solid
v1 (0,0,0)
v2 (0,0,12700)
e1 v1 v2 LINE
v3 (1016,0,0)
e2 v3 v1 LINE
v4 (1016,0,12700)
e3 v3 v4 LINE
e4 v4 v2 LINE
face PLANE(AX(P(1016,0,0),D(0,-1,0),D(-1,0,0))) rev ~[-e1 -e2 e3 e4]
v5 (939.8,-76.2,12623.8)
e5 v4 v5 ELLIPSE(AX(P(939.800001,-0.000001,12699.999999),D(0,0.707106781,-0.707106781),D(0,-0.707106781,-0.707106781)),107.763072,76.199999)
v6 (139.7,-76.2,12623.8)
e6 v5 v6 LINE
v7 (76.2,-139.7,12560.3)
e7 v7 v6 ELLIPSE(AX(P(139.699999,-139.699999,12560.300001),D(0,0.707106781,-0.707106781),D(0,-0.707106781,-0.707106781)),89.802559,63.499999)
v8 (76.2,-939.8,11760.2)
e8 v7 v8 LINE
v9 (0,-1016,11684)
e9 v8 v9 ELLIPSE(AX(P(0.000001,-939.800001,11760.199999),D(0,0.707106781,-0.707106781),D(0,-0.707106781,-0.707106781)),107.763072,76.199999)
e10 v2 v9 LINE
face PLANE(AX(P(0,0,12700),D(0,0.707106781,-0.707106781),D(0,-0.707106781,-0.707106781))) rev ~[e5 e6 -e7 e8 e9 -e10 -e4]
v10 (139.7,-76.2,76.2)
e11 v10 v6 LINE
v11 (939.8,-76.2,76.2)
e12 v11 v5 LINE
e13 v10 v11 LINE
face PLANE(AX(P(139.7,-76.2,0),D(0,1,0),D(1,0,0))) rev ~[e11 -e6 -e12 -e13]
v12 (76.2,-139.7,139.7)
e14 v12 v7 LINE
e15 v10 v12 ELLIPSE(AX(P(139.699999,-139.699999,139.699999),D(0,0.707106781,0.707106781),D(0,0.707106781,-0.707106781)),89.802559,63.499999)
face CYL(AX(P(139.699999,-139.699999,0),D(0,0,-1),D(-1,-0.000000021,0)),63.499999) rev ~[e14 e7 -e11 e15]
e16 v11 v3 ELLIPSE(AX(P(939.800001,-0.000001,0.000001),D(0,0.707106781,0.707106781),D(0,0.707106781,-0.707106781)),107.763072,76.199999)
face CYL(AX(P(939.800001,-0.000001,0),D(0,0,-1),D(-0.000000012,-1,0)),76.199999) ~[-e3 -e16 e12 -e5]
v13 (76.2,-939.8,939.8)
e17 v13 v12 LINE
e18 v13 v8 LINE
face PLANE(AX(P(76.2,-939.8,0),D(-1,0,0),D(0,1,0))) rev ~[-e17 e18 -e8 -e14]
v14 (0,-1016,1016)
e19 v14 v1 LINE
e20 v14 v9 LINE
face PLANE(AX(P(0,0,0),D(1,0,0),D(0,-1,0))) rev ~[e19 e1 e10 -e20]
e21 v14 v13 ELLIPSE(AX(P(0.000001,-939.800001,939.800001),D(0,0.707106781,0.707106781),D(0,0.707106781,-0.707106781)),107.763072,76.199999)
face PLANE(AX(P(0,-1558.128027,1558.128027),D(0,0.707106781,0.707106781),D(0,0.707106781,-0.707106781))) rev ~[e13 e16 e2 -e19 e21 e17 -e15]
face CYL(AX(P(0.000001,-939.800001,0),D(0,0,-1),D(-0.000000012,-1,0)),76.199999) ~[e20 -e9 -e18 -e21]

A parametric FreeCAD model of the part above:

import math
import FreeCAD as App
import Part
import Sketcher

V = App.Vector
Q = App.Units.Quantity


def add_polygon(sketch, points):
    """Adds a closed chain of lines whose ends are joined by coincident constraints."""
    first, n = sketch.GeometryCount, len(points)
    for a, b in zip(points, points[1:] + points[:1]):
        sketch.addGeometry(Part.LineSegment(App.Vector(*a, 0), App.Vector(*b, 0)), False)
    for i in range(n):
        sketch.addConstraint(Sketcher.Constraint("Coincident", first + i, 2, first + (i + 1) % n, 1))

doc = App.newDocument("Part")
params = doc.addObject("Spreadsheet::Sheet", "Params")
for row, (alias, value) in enumerate([
    ("sketch1_radius", "3 in"),
    ("sketch1_radius2", "2.4999999 in"),
    ("sketch1_width", "40 in"),
    ("pad1_length", "500 in"),
    ("pocket1_length", "80 in"),
], start=1):
    params.set(f"A{row}", alias)
    params.set(f"B{row}", "=" + value)
    params.setAlias(f"B{row}", alias)

body = doc.addObject("PartDesign::Body", "Body")

# Sketch on XY plane
sketch1 = doc.addObject("Sketcher::SketchObject", "Sketch")
body.addObject(sketch1)
sketch1.AttachmentSupport = (doc.XY_Plane, [""])
sketch1.MapMode = "FlatFace"
sketch1.addGeometry(Part.LineSegment(V(1016, 0, 0), V(0, 0, 0)), False)
sketch1.addGeometry(Part.LineSegment(V(0, 0, 0), V(0, -1016, 0)), False)
sketch1.addGeometry(Part.ArcOfCircle(Part.Circle(V(0, -940, 0), V(0, 0, 1), 76), math.radians(-90), math.radians(0)), False)
sketch1.addGeometry(Part.LineSegment(V(76, -940, 0), V(76, -140, 0)), False)
sketch1.addGeometry(Part.ArcOfCircle(Part.Circle(V(140, -140, 0), V(0, 0, 1), 63), math.radians(90), math.radians(180)), False)
sketch1.addGeometry(Part.LineSegment(V(140, -76, 0), V(940, -76, 0)), False)
sketch1.addGeometry(Part.ArcOfCircle(Part.Circle(V(940, 0, 0), V(0, 0, 1), 76), math.radians(-90), math.radians(0)), False)
sketch1.addConstraint(Sketcher.Constraint("Coincident", 0, 2, 1, 1))
sketch1.addConstraint(Sketcher.Constraint("Coincident", 1, 2, 2, 1))
sketch1.addConstraint(Sketcher.Constraint("Tangent", 2, 2, 3, 1))
sketch1.addConstraint(Sketcher.Constraint("Tangent", 3, 2, 4, 2))
sketch1.addConstraint(Sketcher.Constraint("Tangent", 4, 1, 5, 1))
sketch1.addConstraint(Sketcher.Constraint("Tangent", 5, 2, 6, 1))
sketch1.addConstraint(Sketcher.Constraint("Coincident", 6, 2, 0, 1))
sketch1.addConstraint(Sketcher.Constraint("Horizontal", 0))
sketch1.addConstraint(Sketcher.Constraint("Vertical", 1))
sketch1.addConstraint(Sketcher.Constraint("Vertical", 3))
sketch1.addConstraint(Sketcher.Constraint("Horizontal", 5))
sketch1.addConstraint(Sketcher.Constraint("Coincident", 0, 2, -1, 1))
sketch1.addConstraint(Sketcher.Constraint("Equal", 2, 6))
sketch1.addConstraint(Sketcher.Constraint("PointOnObject", 2, 3, -2))
sketch1.addConstraint(Sketcher.Constraint("PointOnObject", 6, 3, -1))
sketch1.addConstraint(Sketcher.Constraint("Equal", 0, 1))
sketch1.addConstraint(Sketcher.Constraint("Radius", 2, Q("3 in")))
sketch1.addConstraint(Sketcher.Constraint("Radius", 4, Q("2.4999999 in")))
sketch1.addConstraint(Sketcher.Constraint("DistanceX", 0, 2, 0, 1, Q("40 in")))
sketch1.setExpression("Constraints[16]", "Params.sketch1_radius")
sketch1.setExpression("Constraints[17]", "Params.sketch1_radius2")
sketch1.setExpression("Constraints[18]", "Params.sketch1_width")
pad1 = doc.addObject("PartDesign::Pad", "Pad")
body.addObject(pad1)
pad1.Profile = sketch1
pad1.setExpression("Length", "Params.pad1_length")

# Sketch on YZ plane
sketch2 = doc.addObject("Sketcher::SketchObject", "Sketch001")
body.addObject(sketch2)
sketch2.AttachmentSupport = (doc.YZ_Plane, [""])
sketch2.MapMode = "FlatFace"
add_polygon(sketch2, [(-1558, 1558), (0, 0), (-2257, -993)])  # lines 0-2
add_polygon(sketch2, [(-2496, 14633), (0, 12700), (-1591, 11109)])  # lines 3-5
sketch2.addConstraint(Sketcher.Constraint("Coincident", 0, 2, -1, 1))
sketch2.addConstraint(Sketcher.Constraint("PointOnObject", 3, 2, -2))
sketch2.addConstraint(Sketcher.Constraint("Perpendicular", 0, 4))
sketch2.addConstraint(Sketcher.Constraint("DistanceY", -1, 1, 3, 2, Q("500 in")))
sketch2.addConstraint(Sketcher.Constraint("Angle", 0, Q("-45 deg")))
sketch2.addConstraint(Sketcher.Constraint("Distance", 4, 2249.988501))
sketch2.addConstraint(Sketcher.Constraint("DistanceX", 4, 2, 2, 2, 32.8541))
sketch2.addConstraint(Sketcher.Constraint("DistanceY", 1, 2, 4, 2, 12101.710999))
sketch2.addConstraint(Sketcher.Constraint("Distance", 1, 2465.464809))
sketch2.addConstraint(Sketcher.Constraint("DistanceY", -1, 1, 5, 2, 14632.778168))
sketch2.addConstraint(Sketcher.Constraint("Distance", 3, 3156.801826))
pocket1 = doc.addObject("PartDesign::Pocket", "Pocket")
body.addObject(pocket1)
pocket1.Profile = sketch2
pocket1.setExpression("Length", "Params.pocket1_length")
pocket1.Reversed = True

doc.recompute()
